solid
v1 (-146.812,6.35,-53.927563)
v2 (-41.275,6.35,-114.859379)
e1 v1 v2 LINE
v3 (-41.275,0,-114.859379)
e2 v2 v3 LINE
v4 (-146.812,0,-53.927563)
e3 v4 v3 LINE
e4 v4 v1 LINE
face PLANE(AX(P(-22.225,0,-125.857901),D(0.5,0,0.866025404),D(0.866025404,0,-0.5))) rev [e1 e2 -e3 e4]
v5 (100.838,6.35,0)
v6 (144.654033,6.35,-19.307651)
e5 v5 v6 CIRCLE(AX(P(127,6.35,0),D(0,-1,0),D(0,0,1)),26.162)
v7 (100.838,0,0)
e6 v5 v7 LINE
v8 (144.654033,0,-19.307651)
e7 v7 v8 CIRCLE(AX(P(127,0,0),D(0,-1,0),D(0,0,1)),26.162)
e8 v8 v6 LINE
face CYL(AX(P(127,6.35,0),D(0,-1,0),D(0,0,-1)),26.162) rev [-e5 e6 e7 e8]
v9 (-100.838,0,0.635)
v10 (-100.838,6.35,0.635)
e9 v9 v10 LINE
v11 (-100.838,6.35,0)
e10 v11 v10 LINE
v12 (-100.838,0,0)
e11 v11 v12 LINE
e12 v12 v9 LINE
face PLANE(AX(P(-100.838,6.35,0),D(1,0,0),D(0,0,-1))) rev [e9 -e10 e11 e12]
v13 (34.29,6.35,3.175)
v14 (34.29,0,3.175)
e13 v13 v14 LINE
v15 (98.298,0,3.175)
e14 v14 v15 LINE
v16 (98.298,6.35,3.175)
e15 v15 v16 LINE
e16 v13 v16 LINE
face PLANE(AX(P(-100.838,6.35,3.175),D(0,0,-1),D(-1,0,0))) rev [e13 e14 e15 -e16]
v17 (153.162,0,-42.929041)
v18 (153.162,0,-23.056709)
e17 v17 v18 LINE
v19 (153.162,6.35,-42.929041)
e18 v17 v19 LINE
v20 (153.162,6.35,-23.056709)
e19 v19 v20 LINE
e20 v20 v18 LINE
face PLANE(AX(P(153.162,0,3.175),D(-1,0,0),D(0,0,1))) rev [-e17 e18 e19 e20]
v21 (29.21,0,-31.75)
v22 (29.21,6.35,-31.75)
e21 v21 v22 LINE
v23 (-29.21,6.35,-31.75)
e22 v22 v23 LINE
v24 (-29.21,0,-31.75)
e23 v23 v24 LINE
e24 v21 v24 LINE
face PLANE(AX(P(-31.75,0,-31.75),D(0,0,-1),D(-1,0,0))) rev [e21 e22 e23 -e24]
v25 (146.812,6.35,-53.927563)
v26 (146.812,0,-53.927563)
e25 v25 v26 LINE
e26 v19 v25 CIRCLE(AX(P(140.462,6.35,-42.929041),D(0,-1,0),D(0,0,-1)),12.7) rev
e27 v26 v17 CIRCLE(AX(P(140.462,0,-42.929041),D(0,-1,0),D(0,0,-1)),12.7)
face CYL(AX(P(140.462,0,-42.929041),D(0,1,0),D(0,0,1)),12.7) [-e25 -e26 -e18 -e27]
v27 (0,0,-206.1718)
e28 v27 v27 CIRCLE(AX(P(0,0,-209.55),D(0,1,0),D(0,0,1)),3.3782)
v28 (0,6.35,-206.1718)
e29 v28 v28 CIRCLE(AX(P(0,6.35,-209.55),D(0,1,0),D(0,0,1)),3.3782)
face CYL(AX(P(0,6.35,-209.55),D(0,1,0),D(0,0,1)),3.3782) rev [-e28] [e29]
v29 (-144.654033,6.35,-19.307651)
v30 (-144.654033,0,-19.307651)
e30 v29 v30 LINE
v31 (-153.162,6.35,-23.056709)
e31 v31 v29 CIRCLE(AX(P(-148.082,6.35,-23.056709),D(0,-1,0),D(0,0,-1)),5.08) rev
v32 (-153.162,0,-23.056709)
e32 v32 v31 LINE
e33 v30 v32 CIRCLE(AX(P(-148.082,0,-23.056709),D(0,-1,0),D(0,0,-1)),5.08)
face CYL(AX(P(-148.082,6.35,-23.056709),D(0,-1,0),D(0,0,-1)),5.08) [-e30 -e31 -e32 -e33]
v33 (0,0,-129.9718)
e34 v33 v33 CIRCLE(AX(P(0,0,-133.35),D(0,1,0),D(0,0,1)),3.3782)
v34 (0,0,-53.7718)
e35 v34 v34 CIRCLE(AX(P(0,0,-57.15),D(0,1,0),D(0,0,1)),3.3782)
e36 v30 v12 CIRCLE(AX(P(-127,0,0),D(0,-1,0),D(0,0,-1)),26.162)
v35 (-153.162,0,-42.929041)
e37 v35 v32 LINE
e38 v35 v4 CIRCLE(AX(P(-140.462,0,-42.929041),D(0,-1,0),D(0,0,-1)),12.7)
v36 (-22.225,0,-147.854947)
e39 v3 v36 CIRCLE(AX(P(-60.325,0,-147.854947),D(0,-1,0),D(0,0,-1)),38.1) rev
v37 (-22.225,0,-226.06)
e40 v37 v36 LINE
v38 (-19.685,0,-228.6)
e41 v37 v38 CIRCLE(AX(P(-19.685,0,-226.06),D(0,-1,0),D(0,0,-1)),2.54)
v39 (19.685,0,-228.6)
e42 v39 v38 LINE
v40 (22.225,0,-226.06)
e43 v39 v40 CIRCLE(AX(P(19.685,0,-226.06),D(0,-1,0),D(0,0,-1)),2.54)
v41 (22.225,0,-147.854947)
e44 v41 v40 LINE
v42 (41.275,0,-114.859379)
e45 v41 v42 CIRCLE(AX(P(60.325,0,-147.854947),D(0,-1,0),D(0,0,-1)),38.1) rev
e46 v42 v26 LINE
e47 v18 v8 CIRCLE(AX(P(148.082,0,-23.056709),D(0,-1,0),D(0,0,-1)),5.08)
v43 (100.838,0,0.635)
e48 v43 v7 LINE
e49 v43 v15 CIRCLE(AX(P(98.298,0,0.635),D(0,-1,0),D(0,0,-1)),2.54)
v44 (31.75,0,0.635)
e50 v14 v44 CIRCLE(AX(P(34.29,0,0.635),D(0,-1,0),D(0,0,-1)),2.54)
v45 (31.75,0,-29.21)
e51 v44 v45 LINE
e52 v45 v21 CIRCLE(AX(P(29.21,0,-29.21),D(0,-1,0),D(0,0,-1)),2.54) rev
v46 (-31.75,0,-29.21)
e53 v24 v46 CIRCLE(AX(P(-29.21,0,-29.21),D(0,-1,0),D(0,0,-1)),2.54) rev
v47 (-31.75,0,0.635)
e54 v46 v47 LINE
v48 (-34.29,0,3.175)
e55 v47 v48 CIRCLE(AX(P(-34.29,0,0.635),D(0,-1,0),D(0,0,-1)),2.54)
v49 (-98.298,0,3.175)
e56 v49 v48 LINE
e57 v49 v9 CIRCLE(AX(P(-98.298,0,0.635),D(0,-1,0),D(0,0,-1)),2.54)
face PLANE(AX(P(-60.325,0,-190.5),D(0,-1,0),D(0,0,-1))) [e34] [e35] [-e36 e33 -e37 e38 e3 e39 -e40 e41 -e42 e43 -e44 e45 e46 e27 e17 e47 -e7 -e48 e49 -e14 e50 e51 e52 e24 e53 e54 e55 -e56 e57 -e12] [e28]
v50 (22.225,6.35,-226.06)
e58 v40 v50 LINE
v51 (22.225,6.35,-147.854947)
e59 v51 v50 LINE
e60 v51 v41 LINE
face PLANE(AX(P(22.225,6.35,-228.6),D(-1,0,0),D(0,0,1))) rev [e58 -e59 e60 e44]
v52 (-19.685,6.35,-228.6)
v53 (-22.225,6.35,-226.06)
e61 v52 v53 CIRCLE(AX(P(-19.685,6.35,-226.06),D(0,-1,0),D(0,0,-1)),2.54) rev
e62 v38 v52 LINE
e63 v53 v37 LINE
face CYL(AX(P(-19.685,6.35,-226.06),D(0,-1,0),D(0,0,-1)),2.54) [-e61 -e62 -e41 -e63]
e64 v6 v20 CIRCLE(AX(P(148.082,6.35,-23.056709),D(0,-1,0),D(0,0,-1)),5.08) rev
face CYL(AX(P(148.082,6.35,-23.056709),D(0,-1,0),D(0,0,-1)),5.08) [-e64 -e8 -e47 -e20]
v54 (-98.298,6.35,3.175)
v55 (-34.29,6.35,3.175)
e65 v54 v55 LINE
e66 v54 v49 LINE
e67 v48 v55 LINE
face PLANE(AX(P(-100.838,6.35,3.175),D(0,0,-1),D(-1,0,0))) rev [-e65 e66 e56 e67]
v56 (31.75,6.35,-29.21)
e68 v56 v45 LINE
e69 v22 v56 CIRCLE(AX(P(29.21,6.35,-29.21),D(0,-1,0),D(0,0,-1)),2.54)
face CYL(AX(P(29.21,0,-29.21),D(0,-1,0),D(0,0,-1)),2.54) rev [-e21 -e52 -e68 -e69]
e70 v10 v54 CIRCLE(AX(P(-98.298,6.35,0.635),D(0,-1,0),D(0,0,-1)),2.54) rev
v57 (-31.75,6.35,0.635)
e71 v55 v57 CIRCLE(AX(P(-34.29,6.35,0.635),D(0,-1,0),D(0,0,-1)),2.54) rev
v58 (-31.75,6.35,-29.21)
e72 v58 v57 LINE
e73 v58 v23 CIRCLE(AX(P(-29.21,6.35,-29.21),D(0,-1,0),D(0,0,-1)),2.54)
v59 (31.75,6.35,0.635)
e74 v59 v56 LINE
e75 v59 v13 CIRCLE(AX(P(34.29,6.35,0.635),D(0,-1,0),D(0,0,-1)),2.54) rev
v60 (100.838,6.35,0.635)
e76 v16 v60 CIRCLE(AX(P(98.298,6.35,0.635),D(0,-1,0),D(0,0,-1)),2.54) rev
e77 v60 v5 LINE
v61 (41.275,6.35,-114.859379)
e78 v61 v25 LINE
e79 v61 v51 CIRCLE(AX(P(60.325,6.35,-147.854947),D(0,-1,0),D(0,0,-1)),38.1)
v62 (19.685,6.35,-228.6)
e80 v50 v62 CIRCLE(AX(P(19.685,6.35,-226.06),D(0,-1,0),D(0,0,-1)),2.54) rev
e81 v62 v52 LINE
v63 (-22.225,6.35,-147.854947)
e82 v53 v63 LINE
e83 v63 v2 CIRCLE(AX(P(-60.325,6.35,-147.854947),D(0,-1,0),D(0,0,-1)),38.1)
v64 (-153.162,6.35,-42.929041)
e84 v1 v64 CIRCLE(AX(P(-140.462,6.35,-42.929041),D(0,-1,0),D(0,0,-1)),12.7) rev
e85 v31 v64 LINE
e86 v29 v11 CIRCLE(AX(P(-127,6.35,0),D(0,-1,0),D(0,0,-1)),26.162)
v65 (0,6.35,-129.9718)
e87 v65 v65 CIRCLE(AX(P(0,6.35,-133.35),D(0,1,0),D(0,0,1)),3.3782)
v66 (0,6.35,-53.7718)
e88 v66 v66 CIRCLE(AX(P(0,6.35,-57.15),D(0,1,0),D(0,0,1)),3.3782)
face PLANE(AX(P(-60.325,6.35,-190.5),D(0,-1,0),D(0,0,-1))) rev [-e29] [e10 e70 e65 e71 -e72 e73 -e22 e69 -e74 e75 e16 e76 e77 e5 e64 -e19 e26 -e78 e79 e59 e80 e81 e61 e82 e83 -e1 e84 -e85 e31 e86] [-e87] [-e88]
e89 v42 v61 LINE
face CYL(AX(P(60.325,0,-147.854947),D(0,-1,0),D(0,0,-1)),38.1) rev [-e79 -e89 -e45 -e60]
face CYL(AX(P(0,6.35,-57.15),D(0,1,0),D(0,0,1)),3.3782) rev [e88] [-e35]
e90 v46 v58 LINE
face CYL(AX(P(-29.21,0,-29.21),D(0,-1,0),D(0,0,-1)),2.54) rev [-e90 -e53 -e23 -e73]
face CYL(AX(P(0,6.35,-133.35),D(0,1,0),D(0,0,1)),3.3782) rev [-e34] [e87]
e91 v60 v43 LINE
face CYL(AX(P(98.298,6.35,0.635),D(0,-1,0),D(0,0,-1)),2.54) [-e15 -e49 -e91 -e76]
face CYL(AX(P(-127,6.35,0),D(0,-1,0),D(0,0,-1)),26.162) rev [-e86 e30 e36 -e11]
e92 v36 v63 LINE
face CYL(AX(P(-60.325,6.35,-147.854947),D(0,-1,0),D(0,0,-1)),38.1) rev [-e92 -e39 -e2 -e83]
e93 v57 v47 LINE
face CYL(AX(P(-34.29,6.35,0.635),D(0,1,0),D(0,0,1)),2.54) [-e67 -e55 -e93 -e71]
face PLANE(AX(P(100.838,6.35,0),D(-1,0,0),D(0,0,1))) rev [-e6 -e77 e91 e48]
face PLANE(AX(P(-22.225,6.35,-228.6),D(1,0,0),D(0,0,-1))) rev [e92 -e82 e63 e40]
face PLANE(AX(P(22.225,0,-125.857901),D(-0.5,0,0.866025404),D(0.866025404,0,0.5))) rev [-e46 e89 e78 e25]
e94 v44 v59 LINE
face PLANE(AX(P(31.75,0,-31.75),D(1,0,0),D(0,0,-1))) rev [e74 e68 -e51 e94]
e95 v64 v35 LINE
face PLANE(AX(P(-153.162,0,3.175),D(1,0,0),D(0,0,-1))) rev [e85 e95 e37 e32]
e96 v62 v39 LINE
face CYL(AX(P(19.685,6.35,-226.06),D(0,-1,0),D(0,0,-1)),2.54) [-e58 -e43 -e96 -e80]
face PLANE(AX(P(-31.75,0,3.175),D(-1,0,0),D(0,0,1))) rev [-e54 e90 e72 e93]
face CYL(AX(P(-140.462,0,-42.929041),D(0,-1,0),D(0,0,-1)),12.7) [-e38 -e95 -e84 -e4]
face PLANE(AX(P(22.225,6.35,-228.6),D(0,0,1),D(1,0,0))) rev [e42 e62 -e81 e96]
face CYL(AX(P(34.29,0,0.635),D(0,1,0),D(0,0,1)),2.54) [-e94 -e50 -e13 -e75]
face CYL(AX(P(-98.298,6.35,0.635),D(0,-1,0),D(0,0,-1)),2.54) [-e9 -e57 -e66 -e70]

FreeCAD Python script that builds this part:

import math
import FreeCAD as App
import Part
import Sketcher
from FreeCAD import Vector
Q = App.Units.Quantity


def edges_at(feature, points):
    """Names of the edges that pass closest to the given points."""
    edges = feature.Shape.Edges
    near = lambda p: min(range(len(edges)), key=lambda i: edges[i].distToShape(Part.Vertex(*p))[0])
    return sorted({f"Edge{near(p) + 1}" for p in points})

doc = App.newDocument("Part")
params = doc.addObject("Spreadsheet::Sheet", "Params")
for row, (alias, value) in enumerate([
    ("sketch1_radius", "1.5 in"),
    ("sketch1_radius2", "2.53 in"),
    ("sketch1_radius3", "1.03 in"),
    ("sketch1_width", "1.75 in"),
    ("sketch1_height", "0.125 in"),
    ("pad1_length", "0.25 in"),
    ("sketch2_width", "2.5 in"),
    ("sketch2_height", "1.375 in"),
    ("sketch3_diameter", "0.266 in"),
    ("hole_diameter", "0.266 in"),
    ("sketch4_radius", "2.53 in"),
    ("sketch4_width", "1.5 in"),
    ("sketch4_height", "0.125 in"),
    ("fillet_radius", "1 in"),
    ("fillet2_radius", "0.2 in"),
    ("fillet3_radius", "0.1 in"),
    ("fillet4_radius", "0.5 in"),
    ("fillet5_radius", "1.5 in"),
], start=1):
    params.set(f"A{row}", alias)
    params.set(f"B{row}", "=" + value)
    params.setAlias(f"B{row}", alias)

body = doc.addObject("PartDesign::Body", "Body")

# Sketch on XZ plane
sketch1 = body.newObject("Sketcher::SketchObject", "Sketch")
sketch1.AttachmentSupport = (doc.getObject("XZ_Plane"), [""])
sketch1.MapMode = "FlatFace"
sketch1.addGeometry([
    Part.LineSegment(Vector(22.2, -228.6, 0), Vector(-22.2, -228.6, 0)),  # 0
    Part.LineSegment(Vector(-22.2, -228.6, 0), Vector(-22.2, -190.5, 0)),  # 1
    Part.ArcOfCircle(Part.Circle(Vector(-60.3, -190.5, 0), Vector(0, 0, 1), 38.1), math.radians(0), math.radians(50)),  # 2
    Part.LineSegment(Vector(-35.7, -161.4, 0), Vector(-168.5, -49.1, 0)),  # 3
    Part.ArcOfCircle(Part.Circle(Vector(-127, 0, 0), Vector(0, 0, 1), 64.3), math.radians(180), math.radians(230)),  # 4
    Part.LineSegment(Vector(-191.3, 0, 0), Vector(-191.3, 3.2, 0)),  # 5
    Part.LineSegment(Vector(-191.3, 3.2, 0), Vector(-153.2, 3.2, 0)),  # 6
    Part.LineSegment(Vector(-153.2, 3.2, 0), Vector(-153.2, 0, 0)),  # 7
    Part.ArcOfCircle(Part.Circle(Vector(-127, 0, 0), Vector(0, 0, 1), 26.2), math.radians(180), math.radians(360)),  # 8
    Part.LineSegment(Vector(-100.8, 0, 0), Vector(-100.8, 3.2, 0)),  # 9
    Part.LineSegment(Vector(-100.8, 3.2, 0), Vector(100.8, 3.2, 0)),  # 10
    Part.LineSegment(Vector(100.8, 3.2, 0), Vector(100.8, 0, 0)),  # 11
    Part.ArcOfCircle(Part.Circle(Vector(127, 0, 0), Vector(0, 0, 1), 26.2), math.radians(180), math.radians(360)),  # 12
    Part.LineSegment(Vector(153.2, 0, 0), Vector(153.2, 3.2, 0)),  # 13
    Part.LineSegment(Vector(153.2, 3.2, 0), Vector(191.3, 3.2, 0)),  # 14
    Part.LineSegment(Vector(191.3, 3.2, 0), Vector(191.3, 0, 0)),  # 15
    Part.ArcOfCircle(Part.Circle(Vector(127, 0, 0), Vector(0, 0, 1), 64.3), math.radians(-50), math.radians(0)),  # 16
    Part.LineSegment(Vector(168.5, -49.1, 0), Vector(35.7, -161.4, 0)),  # 17
    Part.ArcOfCircle(Part.Circle(Vector(60.3, -190.5, 0), Vector(0, 0, 1), 38.1), math.radians(130), math.radians(180)),  # 18
    Part.LineSegment(Vector(22.2, -190.5, 0), Vector(22.2, -228.6, 0)),  # 19
], False)
sketch1.addConstraint([
    Sketcher.Constraint("Coincident", 0, 2, 1, 1),
    Sketcher.Constraint("Tangent", 1, 2, 2, 1),
    Sketcher.Constraint("Tangent", 2, 2, 3, 1),
    Sketcher.Constraint("Tangent", 3, 2, 4, 2),
    Sketcher.Constraint("Tangent", 4, 1, 5, 1),
    Sketcher.Constraint("Coincident", 5, 2, 6, 1),
    Sketcher.Constraint("Coincident", 6, 2, 7, 1),
    Sketcher.Constraint("Tangent", 7, 2, 8, 1),
    Sketcher.Constraint("Tangent", 8, 2, 9, 1),
    Sketcher.Constraint("Coincident", 9, 2, 10, 1),
    Sketcher.Constraint("Coincident", 10, 2, 11, 1),
    Sketcher.Constraint("Tangent", 11, 2, 12, 1),
    Sketcher.Constraint("Tangent", 12, 2, 13, 1),
    Sketcher.Constraint("Coincident", 13, 2, 14, 1),
    Sketcher.Constraint("Coincident", 14, 2, 15, 1),
    Sketcher.Constraint("Tangent", 15, 2, 16, 2),
    Sketcher.Constraint("Tangent", 16, 1, 17, 1),
    Sketcher.Constraint("Tangent", 17, 2, 18, 1),
    Sketcher.Constraint("Tangent", 18, 2, 19, 1),
    Sketcher.Constraint("Coincident", 19, 2, 0, 1),
    Sketcher.Constraint("Horizontal", 0),
    Sketcher.Constraint("Vertical", 1),
    Sketcher.Constraint("Vertical", 5),
    Sketcher.Constraint("Horizontal", 6),
    Sketcher.Constraint("Vertical", 7),
    Sketcher.Constraint("Vertical", 9),
    Sketcher.Constraint("Horizontal", 10),
    Sketcher.Constraint("Vertical", 11),
    Sketcher.Constraint("Vertical", 13),
    Sketcher.Constraint("Horizontal", 14),
    Sketcher.Constraint("Vertical", 15),
    Sketcher.Constraint("Vertical", 19),
    Sketcher.Constraint("Coincident", 8, 3, 4, 3),
    Sketcher.Constraint("Coincident", 16, 3, 12, 3),
    Sketcher.Constraint("Equal", 8, 12),
    Sketcher.Constraint("Equal", 4, 16),
    Sketcher.Constraint("Equal", 2, 18),
    Sketcher.Constraint("Symmetric", 4, 3, 12, 3, -1, 1),
    Sketcher.Constraint("Symmetric", 2, 3, 18, 3, -2),
    Sketcher.Constraint("PointOnObject", 4, 3, -1),
    Sketcher.Constraint("Horizontal", 6, 2, 9, 2),
    Sketcher.Constraint("Horizontal", 10, 2, 13, 2),
    Sketcher.Constraint("Equal", 14, 1),
    Sketcher.Constraint("Radius", 2, Q("1.5 in")),
    Sketcher.Constraint("Radius", 4, Q("2.53 in")),
    Sketcher.Constraint("Radius", 8, Q("1.03 in")),
    Sketcher.Constraint("DistanceX", 4, 3, -1, 1, Q("5 in")),
    Sketcher.Constraint("DistanceY", 0, 2, -1, 1, Q("9 in")),
    Sketcher.Constraint("DistanceX", 0, 2, 0, 1, Q("1.75 in")),
    Sketcher.Constraint("DistanceY", 5, 1, 5, 2, Q("0.125 in")),
])
sketch1.setExpression("Constraints[43]", "Params.sketch1_radius")
sketch1.setExpression("Constraints[44]", "Params.sketch1_radius2")
sketch1.setExpression("Constraints[45]", "Params.sketch1_radius3")
sketch1.setExpression("Constraints[48]", "Params.sketch1_width")
sketch1.setExpression("Constraints[49]", "Params.sketch1_height")
pad1 = body.newObject("PartDesign::Pad", "Pad")
pad1.Profile = sketch1
pad1.setExpression("Length", "Params.pad1_length")
pad1.Reversed = True

# Sketch on XZ plane
sketch2 = body.newObject("Sketcher::SketchObject", "Sketch001")
sketch2.AttachmentSupport = (doc.getObject("XZ_Plane"), [""])
sketch2.MapMode = "FlatFace"
sketch2.AttachmentOffset = App.Placement(Vector(0, 0, -0.25 * 25.4), App.Rotation())
sketch2.addGeometry([
    Part.LineSegment(Vector(-32, -32, 0), Vector(-32, 3, 0)),
    Part.LineSegment(Vector(-32, 3, 0), Vector(32, 3, 0)),
    Part.LineSegment(Vector(32, 3, 0), Vector(32, -32, 0)),
    Part.LineSegment(Vector(32, -32, 0), Vector(-32, -32, 0)),
], False)
sketch2.addConstraint([
    Sketcher.Constraint("Coincident", 0, 2, 1, 1),
    Sketcher.Constraint("Coincident", 1, 2, 2, 1),
    Sketcher.Constraint("Coincident", 2, 2, 3, 1),
    Sketcher.Constraint("Coincident", 3, 2, 0, 1),
    Sketcher.Constraint("Vertical", 0),
    Sketcher.Constraint("Horizontal", 1),
    Sketcher.Constraint("Vertical", 2),
    Sketcher.Constraint("Horizontal", 3),
    Sketcher.Constraint("DistanceX", 1, 1, 1, 2, Q("2.5 in")),
    Sketcher.Constraint("DistanceY", 0, 1, 0, 2, Q("1.375 in")),
    Sketcher.Constraint("DistanceX", 0, 2, -1, 1, Q("1.25 in")),
    Sketcher.Constraint("DistanceY", 2, 2, -1, 1, Q("1.25 in")),
])
sketch2.setExpression("Constraints[8]", "Params.sketch2_width")
sketch2.setExpression("Constraints[9]", "Params.sketch2_height")
pocket1 = body.newObject("PartDesign::Pocket", "Pocket")
pocket1.Profile = sketch2
pocket1.Type = "ThroughAll"
pocket1.Reversed = True

# Sketch on XZ plane
sketch3 = body.newObject("Sketcher::SketchObject", "Sketch002")
sketch3.AttachmentSupport = (doc.getObject("XZ_Plane"), [""])
sketch3.MapMode = "FlatFace"
sketch3.AttachmentOffset = App.Placement(Vector(0, 0, -0.25 * 25.4), App.Rotation())
sketch3.addGeometry([
    Part.Circle(Vector(0, -209.6, 0), Vector(0, 0, 1), 3.4),
    Part.Circle(Vector(0, -133.3, 0), Vector(0, 0, 1), 3.4),
    Part.Circle(Vector(0, -57.1, 0), Vector(0, 0, 1), 3.4),
], False)
sketch3.addConstraint([
    Sketcher.Constraint("Equal", 0, 1),
    Sketcher.Constraint("Equal", 1, 2),
    Sketcher.Constraint("PointOnObject", 0, 3, -2),
    Sketcher.Constraint("PointOnObject", 1, 3, -2),
    Sketcher.Constraint("PointOnObject", 2, 3, -2),
    Sketcher.Constraint("Diameter", 0, Q("0.266 in")),
    Sketcher.Constraint("DistanceY", 0, 3, 1, 3, Q("3 in")),
    Sketcher.Constraint("DistanceY", 1, 3, 2, 3, Q("3 in")),
    Sketcher.Constraint("DistanceY", 0, 3, -1, 1, Q("8.25 in")),
])
sketch3.setExpression("Constraints[5]", "Params.sketch3_diameter")
doc.recompute()
hole = body.newObject("PartDesign::Hole", "Hole")
hole.Profile = sketch3
hole.ThreadType = "None"
hole.setExpression("Diameter", "Params.hole_diameter")
hole.DepthType = "ThroughAll"
hole.Reversed = True

# Sketch on XZ plane
sketch4 = body.newObject("Sketcher::SketchObject", "Sketch003")
sketch4.AttachmentSupport = (doc.getObject("XZ_Plane"), [""])
sketch4.MapMode = "FlatFace"
sketch4.AttachmentOffset = App.Placement(Vector(0, 0, -0.25 * 25.4), App.Rotation())
sketch4.addGeometry([
    Part.LineSegment(Vector(-153.2, 3.2, 0), Vector(-153.2, -62, 0)),  # 0
    Part.LineSegment(Vector(-153.2, -62, 0), Vector(-168.5, -49.1, 0)),  # 1
    Part.ArcOfCircle(Part.Circle(Vector(-127, 0, 0), Vector(0, 0, 1), 64.3), math.radians(180), math.radians(230)),  # 2
    Part.LineSegment(Vector(-191.3, 0, 0), Vector(-191.3, 3.2, 0)),  # 3
    Part.LineSegment(Vector(-191.3, 3.2, 0), Vector(-153.2, 3.2, 0)),  # 4
    Part.LineSegment(Vector(191.3, 3.2, 0), Vector(191.3, 0, 0)),  # 5
    Part.ArcOfCircle(Part.Circle(Vector(127, 0, 0), Vector(0, 0, 1), 64.3), math.radians(-50), math.radians(0)),  # 6
    Part.LineSegment(Vector(168.5, -49.1, 0), Vector(153.2, -62, 0)),  # 7
    Part.LineSegment(Vector(153.2, -62, 0), Vector(153.2, 3.2, 0)),  # 8
    Part.LineSegment(Vector(153.2, 3.2, 0), Vector(191.3, 3.2, 0)),  # 9
], False)
sketch4.addConstraint([
    Sketcher.Constraint("Coincident", 0, 2, 1, 1),
    Sketcher.Constraint("Tangent", 1, 2, 2, 2),
    Sketcher.Constraint("Tangent", 2, 1, 3, 1),
    Sketcher.Constraint("Coincident", 3, 2, 4, 1),
    Sketcher.Constraint("Coincident", 4, 2, 0, 1),
    Sketcher.Constraint("Tangent", 5, 2, 6, 2),
    Sketcher.Constraint("Tangent", 6, 1, 7, 1),
    Sketcher.Constraint("Coincident", 7, 2, 8, 1),
    Sketcher.Constraint("Coincident", 8, 2, 9, 1),
    Sketcher.Constraint("Coincident", 9, 2, 5, 1),
    Sketcher.Constraint("Vertical", 0),
    Sketcher.Constraint("Vertical", 3),
    Sketcher.Constraint("Horizontal", 4),
    Sketcher.Constraint("Vertical", 5),
    Sketcher.Constraint("Vertical", 8),
    Sketcher.Constraint("Horizontal", 9),
    Sketcher.Constraint("Equal", 2, 6),
    Sketcher.Constraint("Symmetric", 2, 3, 6, 3, -1, 1),
    Sketcher.Constraint("Symmetric", 1, 2, 6, 1, -2),
    Sketcher.Constraint("Symmetric", 4, 2, 8, 2, -2),
    Sketcher.Constraint("Radius", 2, Q("2.53 in")),
    Sketcher.Constraint("DistanceX", 4, 1, 4, 2, Q("1.5 in")),
    Sketcher.Constraint("DistanceX", 2, 3, -1, 1, Q("5 in")),
    Sketcher.Constraint("DistanceY", 3, 1, 3, 2, Q("0.125 in")),
    Sketcher.Constraint("DistanceX", 1, 2, -1, 1, 168.508099),
])
sketch4.setExpression("Constraints[20]", "Params.sketch4_radius")
sketch4.setExpression("Constraints[21]", "Params.sketch4_width")
sketch4.setExpression("Constraints[23]", "Params.sketch4_height")
pocket2 = body.newObject("PartDesign::Pocket", "Pocket001")
pocket2.Profile = sketch4
pocket2.Type = "ThroughAll"
pocket2.Reversed = True
doc.recompute()

fillet = body.newObject("PartDesign::Fillet", "Fillet")
fillet.Base = (pocket2, edges_at(pocket2, [(153.162, 3.175, -62.042), (-153.162, 3.175, -62.042)]))
fillet.setExpression("Radius", "Params.fillet_radius")
doc.recompute()

fillet2 = body.newObject("PartDesign::Fillet", "Fillet001")
fillet2.Base = (fillet, edges_at(fillet, [(153.162, 3.175, 0), (-153.162, 3.175, 0)]))
fillet2.setExpression("Radius", "Params.fillet2_radius")
doc.recompute()

fillet3 = body.newObject("PartDesign::Fillet", "Fillet002")
fillet3.Base = (fillet2, edges_at(fillet2, [
    (-22.225, 3.175, -228.6),
    (22.225, 3.175, -228.6),
    (100.838, 3.175, 3.175),
    (-100.838, 3.175, 3.175),
    (31.75, 3.175, 3.175),
    (-31.75, 3.175, 3.175),
    (-31.75, 3.175, -31.75),
    (31.75, 3.175, -31.75),
]))
fillet3.setExpression("Radius", "Params.fillet3_radius")

# Sketch on XZ plane
sketch5 = body.newObject("Sketcher::SketchObject", "Sketch004")
sketch5.AttachmentSupport = (doc.getObject("XZ_Plane"), [""])
sketch5.MapMode = "FlatFace"
sketch5.AttachmentOffset = App.Placement(Vector(0, 0, -0.25 * 25.4), App.Rotation())
sketch5.addGeometry([
    Part.LineSegment(Vector(-153, -50, 0), Vector(-22, -126, 0)),  # 0
    Part.LineSegment(Vector(-22, -126, 0), Vector(-22, -190, 0)),  # 1
    Part.LineSegment(Vector(-22, -190, 0), Vector(-153, -61, 0)),  # 2
    Part.LineSegment(Vector(-153, -61, 0), Vector(-153, -50, 0)),  # 3
    Part.LineSegment(Vector(153, -50, 0), Vector(153, -61, 0)),  # 4
    Part.LineSegment(Vector(153, -61, 0), Vector(22, -190, 0)),  # 5
    Part.LineSegment(Vector(22, -190, 0), Vector(22, -126, 0)),  # 6
    Part.LineSegment(Vector(22, -126, 0), Vector(153, -50, 0)),  # 7
], False)
sketch5.addConstraint([
    Sketcher.Constraint("Coincident", 0, 2, 1, 1),
    Sketcher.Constraint("Coincident", 1, 2, 2, 1),
    Sketcher.Constraint("Coincident", 2, 2, 3, 1),
    Sketcher.Constraint("Coincident", 3, 2, 0, 1),
    Sketcher.Constraint("Coincident", 4, 2, 5, 1),
    Sketcher.Constraint("Coincident", 5, 2, 6, 1),
    Sketcher.Constraint("Coincident", 6, 2, 7, 1),
    Sketcher.Constraint("Coincident", 7, 2, 4, 1),
    Sketcher.Constraint("Vertical", 1),
    Sketcher.Constraint("Vertical", 3),
    Sketcher.Constraint("Vertical", 4),
    Sketcher.Constraint("Vertical", 6),
    Sketcher.Constraint("Symmetric", 2, 2, 4, 2, -2),
    Sketcher.Constraint("Symmetric", 1, 2, 5, 2, -2),
    Sketcher.Constraint("Horizontal", 0, 2, 6, 2),
    Sketcher.Constraint("Horizontal", 3, 2, 7, 2),
    Sketcher.Constraint("Angle", 0, Q("-30 deg")),
    Sketcher.Constraint("DistanceY", 1, 2, -1, 1, Q("7.5 in")),
    Sketcher.Constraint("DistanceX", 2, 2, -1, 1, Q("6.03 in")),
    Sketcher.Constraint("DistanceX", 1, 2, 5, 2, Q("1.75 in")),
    Sketcher.Constraint("DistanceY", 1, 2, 1, 1, 64.642099),
    Sketcher.Constraint("DistanceY", 3, 1, 3, 2, 10.594949),
])
pocket3 = body.newObject("PartDesign::Pocket", "Pocket002")
pocket3.Profile = sketch5
pocket3.Type = "ThroughAll"
pocket3.Reversed = True
doc.recompute()

fillet4 = body.newObject("PartDesign::Fillet", "Fillet003")
fillet4.Base = (pocket3, edges_at(pocket3, [(153.162, 3.175, -50.261), (-153.162, 3.175, -50.261)]))
fillet4.setExpression("Radius", "Params.fillet4_radius")
doc.recompute()

fillet5 = body.newObject("PartDesign::Fillet", "Fillet004")
fillet5.Base = (fillet4, edges_at(fillet4, [(-22.225, 3.175, -125.858), (22.225, 3.175, -125.858)]))
fillet5.setExpression("Radius", "Params.fillet5_radius")

doc.recompute()
